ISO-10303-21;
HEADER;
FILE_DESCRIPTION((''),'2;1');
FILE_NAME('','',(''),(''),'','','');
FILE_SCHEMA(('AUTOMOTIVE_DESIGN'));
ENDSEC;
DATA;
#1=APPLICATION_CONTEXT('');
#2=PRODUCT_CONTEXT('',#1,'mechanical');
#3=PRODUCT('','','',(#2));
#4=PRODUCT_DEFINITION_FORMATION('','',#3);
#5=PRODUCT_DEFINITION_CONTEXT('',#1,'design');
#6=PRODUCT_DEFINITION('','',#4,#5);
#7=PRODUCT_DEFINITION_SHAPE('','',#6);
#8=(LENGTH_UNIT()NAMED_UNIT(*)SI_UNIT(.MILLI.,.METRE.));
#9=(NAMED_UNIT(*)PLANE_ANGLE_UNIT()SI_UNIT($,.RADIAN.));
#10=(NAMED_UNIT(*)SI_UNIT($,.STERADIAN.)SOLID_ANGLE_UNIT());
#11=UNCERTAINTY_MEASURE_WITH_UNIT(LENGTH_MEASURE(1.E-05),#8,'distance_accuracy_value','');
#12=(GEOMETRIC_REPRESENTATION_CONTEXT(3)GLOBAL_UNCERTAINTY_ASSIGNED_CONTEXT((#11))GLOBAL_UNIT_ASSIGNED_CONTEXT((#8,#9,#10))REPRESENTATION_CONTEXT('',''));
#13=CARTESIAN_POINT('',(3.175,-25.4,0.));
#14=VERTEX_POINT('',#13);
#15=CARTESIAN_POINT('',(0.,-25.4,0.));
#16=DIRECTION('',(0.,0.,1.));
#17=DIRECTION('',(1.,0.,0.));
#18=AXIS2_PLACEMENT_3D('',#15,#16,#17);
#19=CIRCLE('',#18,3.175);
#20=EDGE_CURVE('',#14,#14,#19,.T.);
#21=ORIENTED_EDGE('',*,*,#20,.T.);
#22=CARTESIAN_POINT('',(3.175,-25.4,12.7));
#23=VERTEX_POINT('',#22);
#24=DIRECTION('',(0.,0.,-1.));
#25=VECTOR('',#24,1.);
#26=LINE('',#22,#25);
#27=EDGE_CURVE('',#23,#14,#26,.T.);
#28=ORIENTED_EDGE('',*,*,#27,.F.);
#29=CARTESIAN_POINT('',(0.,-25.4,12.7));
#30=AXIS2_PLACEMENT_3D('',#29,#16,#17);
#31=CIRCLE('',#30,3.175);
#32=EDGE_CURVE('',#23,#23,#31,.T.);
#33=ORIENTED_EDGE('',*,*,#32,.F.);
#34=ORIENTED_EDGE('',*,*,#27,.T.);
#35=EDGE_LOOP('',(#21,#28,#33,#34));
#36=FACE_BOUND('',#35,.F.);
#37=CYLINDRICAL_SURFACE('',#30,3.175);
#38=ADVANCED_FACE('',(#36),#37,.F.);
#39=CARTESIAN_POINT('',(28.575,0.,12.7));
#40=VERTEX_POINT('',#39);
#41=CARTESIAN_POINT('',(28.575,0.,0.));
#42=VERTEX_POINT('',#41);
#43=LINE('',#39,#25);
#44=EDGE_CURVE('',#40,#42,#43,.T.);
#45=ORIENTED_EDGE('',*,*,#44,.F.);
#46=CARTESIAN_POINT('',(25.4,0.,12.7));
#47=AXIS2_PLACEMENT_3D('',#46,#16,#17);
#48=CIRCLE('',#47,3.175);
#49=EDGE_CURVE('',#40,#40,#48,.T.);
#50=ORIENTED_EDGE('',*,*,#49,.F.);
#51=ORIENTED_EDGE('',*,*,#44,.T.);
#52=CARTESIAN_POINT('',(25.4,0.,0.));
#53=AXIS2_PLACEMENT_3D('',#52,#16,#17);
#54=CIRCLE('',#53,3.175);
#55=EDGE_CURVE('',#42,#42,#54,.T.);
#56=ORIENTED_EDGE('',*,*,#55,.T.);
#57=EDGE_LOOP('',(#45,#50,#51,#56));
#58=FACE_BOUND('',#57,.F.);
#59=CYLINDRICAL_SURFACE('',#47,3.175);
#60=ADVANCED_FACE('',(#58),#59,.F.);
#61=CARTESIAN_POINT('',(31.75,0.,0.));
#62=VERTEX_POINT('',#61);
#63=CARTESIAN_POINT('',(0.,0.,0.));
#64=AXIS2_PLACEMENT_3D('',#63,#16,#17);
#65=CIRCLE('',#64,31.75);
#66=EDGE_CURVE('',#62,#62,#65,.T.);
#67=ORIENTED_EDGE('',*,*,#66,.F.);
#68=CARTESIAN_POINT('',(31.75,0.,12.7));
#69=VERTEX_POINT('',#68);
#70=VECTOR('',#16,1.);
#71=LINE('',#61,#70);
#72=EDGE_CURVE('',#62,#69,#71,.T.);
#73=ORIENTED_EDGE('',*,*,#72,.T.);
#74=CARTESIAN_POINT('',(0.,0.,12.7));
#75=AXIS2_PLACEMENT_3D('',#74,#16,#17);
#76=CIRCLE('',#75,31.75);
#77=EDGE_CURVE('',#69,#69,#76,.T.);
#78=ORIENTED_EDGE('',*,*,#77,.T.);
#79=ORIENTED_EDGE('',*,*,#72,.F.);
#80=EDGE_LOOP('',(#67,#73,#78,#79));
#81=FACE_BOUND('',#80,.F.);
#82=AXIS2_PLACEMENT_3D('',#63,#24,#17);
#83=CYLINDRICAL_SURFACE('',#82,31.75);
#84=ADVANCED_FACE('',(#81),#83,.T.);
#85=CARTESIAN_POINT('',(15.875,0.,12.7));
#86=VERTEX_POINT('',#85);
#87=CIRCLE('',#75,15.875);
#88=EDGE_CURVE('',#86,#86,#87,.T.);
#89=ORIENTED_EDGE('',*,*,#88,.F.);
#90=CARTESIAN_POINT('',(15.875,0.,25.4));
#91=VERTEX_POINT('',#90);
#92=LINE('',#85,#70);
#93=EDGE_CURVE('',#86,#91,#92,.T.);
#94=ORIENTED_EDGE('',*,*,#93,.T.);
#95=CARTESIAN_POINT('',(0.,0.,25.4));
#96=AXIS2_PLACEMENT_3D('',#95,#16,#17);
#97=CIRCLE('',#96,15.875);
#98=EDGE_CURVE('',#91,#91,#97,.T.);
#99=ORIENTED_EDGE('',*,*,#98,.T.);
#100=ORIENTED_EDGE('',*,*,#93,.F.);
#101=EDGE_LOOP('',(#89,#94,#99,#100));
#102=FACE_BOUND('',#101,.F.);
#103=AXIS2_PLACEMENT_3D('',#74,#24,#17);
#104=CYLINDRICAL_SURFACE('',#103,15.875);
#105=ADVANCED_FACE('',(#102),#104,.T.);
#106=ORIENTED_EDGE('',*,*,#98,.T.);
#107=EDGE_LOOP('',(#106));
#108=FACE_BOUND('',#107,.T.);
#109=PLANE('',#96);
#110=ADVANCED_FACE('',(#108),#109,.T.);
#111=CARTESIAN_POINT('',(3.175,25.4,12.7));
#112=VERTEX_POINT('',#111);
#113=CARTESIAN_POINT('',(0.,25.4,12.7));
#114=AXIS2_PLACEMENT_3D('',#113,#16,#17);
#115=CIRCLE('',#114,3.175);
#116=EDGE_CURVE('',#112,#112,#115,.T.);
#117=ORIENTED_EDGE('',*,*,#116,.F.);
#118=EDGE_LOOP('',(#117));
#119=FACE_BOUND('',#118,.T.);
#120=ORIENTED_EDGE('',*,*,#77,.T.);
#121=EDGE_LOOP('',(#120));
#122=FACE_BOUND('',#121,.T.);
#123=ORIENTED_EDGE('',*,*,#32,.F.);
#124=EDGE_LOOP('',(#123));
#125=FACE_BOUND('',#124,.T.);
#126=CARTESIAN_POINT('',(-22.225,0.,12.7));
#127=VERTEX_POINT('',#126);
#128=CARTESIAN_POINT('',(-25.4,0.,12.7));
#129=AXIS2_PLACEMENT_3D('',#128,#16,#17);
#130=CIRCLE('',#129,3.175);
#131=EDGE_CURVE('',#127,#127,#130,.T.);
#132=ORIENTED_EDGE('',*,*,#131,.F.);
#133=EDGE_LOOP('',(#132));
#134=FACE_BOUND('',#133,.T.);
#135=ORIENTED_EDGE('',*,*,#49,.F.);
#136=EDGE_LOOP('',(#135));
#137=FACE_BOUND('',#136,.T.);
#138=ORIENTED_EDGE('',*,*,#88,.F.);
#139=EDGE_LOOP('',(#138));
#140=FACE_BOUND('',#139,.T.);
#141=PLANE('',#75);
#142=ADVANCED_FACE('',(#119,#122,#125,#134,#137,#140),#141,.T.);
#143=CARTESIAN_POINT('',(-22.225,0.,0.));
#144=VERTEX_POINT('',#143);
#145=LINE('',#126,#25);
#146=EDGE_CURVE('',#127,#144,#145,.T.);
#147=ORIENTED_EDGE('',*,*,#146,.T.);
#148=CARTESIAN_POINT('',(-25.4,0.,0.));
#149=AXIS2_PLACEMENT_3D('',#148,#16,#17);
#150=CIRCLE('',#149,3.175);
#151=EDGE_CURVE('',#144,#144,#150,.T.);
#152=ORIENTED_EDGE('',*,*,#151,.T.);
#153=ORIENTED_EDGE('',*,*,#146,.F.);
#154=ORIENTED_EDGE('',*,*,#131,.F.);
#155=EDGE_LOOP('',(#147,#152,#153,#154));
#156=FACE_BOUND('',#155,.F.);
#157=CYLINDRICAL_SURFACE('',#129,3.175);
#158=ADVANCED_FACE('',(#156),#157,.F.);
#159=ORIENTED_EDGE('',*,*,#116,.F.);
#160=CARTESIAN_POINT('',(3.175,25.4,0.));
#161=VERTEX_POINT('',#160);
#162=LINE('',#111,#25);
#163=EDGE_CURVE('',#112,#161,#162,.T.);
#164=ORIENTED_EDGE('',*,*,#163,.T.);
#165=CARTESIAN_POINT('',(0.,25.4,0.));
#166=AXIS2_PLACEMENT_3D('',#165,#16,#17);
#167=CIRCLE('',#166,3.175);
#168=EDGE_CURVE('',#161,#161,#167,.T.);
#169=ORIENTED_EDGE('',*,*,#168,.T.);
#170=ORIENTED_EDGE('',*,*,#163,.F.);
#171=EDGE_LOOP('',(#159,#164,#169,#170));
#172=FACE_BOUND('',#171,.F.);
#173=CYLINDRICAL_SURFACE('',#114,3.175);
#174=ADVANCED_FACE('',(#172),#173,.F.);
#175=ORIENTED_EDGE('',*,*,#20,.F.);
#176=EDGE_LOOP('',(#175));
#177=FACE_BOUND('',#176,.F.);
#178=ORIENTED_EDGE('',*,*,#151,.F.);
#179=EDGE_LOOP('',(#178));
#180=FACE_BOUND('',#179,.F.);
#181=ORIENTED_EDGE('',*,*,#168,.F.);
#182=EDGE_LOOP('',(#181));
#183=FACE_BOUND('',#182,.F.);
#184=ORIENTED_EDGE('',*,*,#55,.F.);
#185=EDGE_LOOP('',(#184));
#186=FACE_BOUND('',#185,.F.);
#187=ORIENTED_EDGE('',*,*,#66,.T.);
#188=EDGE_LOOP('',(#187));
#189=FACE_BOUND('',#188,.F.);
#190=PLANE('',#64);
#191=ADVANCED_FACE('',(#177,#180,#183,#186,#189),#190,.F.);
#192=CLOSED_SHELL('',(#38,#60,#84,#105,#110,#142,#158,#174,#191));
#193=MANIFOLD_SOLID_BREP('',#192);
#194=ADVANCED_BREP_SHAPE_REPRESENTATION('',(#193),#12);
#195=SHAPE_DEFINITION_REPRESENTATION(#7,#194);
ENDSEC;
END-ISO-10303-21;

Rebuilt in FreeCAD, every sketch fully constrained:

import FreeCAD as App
import Part
import Sketcher

V = App.Vector
Q = App.Units.Quantity

doc = App.newDocument("Part")
body = doc.addObject("PartDesign::Body", "Body")

sketch1 = body.newObject("Sketcher::SketchObject", "Sketch")
sketch1.AttachmentSupport = (doc.getObject("XY_Plane"), [""])
sketch1.MapMode = "FlatFace"
sketch1.addGeometry(Part.Circle(V(0, 0, 0), V(0, 0, 1), 31.75), False)
sketch1.addConstraint([
    Sketcher.Constraint("Coincident", 0, 3, -1, 1),
    Sketcher.Constraint("Diameter", 0, Q("2.5 in")),
])
pad1 = body.newObject("PartDesign::Pad", "Pad")
pad1.Profile = sketch1
pad1.Length = Q("0.5 in")

sketch2 = body.newObject("Sketcher::SketchObject", "Sketch001")
sketch2.AttachmentSupport = (doc.getObject("XY_Plane"), [""])
sketch2.MapMode = "FlatFace"
sketch2.AttachmentOffset = App.Placement(V(0, 0, 0.5 * 25.4), App.Rotation())
sketch2.addGeometry(Part.Circle(V(0, 0, 0), V(0, 0, 1), 15.875), False)
sketch2.addConstraint([
    Sketcher.Constraint("Coincident", 0, 3, -1, 1),
    Sketcher.Constraint("Diameter", 0, Q("1.25 in")),
])
pad2 = body.newObject("PartDesign::Pad", "Pad001")
pad2.Profile = sketch2
pad2.Length = Q("0.5 in")

sketch3 = body.newObject("Sketcher::SketchObject", "Sketch002")
sketch3.AttachmentSupport = (doc.getObject("XY_Plane"), [""])
sketch3.MapMode = "FlatFace"
sketch3.AttachmentOffset = App.Placement(V(0, 0, 0.5 * 25.4), App.Rotation())
sketch3.addGeometry([
    Part.Circle(V(25.4, 0, 0), V(0, 0, 1), 3.175),
    Part.Circle(V(0, 25.4, 0), V(0, 0, 1), 3.175),
    Part.Circle(V(-25.4, 0, 0), V(0, 0, 1), 3.175),
    Part.Circle(V(0, -25.4, 0), V(0, 0, 1), 3.175),
], False)
sketch3.addConstraint([
    Sketcher.Constraint("Equal", 0, 1),
    Sketcher.Constraint("Equal", 1, 2),
    Sketcher.Constraint("Equal", 2, 3),
    Sketcher.Constraint("Symmetric", 0, 3, 2, 3, -1, 1),
    Sketcher.Constraint("Symmetric", 1, 3, 3, 3, -1, 1),
    Sketcher.Constraint("PointOnObject", 0, 3, -1),
    Sketcher.Constraint("PointOnObject", 1, 3, -2),
    Sketcher.Constraint("Diameter", 0, Q("0.25 in")),
    Sketcher.Constraint("DistanceX", -1, 1, 0, 3, Q("1 in")),
    Sketcher.Constraint("DistanceY", -1, 1, 1, 3, Q("1 in")),
])
pocket1 = body.newObject("PartDesign::Pocket", "Pocket")
pocket1.Profile = sketch3
pocket1.Type = "ThroughAll"

doc.recompute()
